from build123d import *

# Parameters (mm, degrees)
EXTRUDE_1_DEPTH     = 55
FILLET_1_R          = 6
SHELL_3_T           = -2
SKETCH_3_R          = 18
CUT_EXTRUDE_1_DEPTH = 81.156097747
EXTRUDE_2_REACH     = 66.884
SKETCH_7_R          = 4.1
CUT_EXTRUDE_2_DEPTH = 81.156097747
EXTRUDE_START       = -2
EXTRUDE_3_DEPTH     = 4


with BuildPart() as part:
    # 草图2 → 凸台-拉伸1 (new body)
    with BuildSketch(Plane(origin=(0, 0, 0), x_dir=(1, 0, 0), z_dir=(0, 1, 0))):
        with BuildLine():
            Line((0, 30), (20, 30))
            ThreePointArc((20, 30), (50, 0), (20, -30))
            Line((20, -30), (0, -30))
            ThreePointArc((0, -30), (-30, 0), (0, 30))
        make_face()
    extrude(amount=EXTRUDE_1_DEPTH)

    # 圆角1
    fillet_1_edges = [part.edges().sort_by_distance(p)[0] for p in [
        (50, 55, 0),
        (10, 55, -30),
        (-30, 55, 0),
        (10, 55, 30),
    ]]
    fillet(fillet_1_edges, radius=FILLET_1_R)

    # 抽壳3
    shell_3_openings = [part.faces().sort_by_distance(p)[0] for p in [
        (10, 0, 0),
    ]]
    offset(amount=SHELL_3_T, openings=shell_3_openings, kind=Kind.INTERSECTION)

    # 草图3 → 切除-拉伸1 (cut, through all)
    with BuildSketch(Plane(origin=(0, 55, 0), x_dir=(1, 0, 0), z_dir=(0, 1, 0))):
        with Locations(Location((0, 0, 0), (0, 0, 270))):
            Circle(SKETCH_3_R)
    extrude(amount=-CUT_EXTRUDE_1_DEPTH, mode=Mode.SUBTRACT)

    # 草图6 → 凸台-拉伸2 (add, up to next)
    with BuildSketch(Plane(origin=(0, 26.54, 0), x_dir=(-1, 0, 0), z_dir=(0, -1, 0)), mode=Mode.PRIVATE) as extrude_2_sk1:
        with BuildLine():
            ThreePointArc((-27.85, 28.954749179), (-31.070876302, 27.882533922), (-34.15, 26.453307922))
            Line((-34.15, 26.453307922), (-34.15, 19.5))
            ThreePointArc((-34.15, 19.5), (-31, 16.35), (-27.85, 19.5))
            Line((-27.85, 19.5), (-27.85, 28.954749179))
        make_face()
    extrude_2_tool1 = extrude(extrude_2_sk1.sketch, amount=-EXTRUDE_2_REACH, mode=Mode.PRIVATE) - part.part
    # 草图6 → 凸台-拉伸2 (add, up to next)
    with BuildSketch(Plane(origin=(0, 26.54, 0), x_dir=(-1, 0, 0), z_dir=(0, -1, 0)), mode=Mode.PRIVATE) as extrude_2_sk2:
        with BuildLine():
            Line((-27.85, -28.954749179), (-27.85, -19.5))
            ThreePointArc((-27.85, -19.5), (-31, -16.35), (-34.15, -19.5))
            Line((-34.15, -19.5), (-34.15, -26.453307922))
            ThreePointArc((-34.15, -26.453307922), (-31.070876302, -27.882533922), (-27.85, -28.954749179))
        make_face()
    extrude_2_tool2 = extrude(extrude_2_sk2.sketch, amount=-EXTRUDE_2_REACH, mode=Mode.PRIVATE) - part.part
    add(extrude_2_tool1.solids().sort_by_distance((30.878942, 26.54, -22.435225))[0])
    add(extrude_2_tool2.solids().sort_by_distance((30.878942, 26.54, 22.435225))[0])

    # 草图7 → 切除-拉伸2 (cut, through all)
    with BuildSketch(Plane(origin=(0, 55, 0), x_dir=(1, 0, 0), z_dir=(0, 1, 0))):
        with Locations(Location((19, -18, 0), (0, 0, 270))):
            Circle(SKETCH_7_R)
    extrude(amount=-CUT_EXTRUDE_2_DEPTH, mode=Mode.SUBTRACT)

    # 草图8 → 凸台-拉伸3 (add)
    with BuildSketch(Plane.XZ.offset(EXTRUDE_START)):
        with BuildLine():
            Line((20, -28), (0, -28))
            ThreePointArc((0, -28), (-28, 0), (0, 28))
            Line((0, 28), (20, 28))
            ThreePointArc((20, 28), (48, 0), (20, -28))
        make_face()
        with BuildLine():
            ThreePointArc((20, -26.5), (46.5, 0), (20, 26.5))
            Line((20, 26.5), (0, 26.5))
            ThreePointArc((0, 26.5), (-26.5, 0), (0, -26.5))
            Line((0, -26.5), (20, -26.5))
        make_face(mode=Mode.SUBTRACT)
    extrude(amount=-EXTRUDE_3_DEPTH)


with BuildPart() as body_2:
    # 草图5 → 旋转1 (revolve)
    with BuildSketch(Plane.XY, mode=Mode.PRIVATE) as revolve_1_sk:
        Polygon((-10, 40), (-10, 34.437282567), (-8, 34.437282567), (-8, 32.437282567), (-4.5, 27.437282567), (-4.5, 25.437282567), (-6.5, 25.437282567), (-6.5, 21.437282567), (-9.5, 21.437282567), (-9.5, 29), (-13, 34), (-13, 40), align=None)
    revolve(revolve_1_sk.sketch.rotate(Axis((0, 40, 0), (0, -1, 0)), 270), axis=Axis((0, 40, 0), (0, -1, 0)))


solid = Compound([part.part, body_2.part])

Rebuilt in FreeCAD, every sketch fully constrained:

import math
import FreeCAD as App
import Part
import Sketcher

V = App.Vector


def edges_at(feature, points):
    """Names of the edges that pass closest to the given points."""
    edges = feature.Shape.Edges
    near = lambda p: min(range(len(edges)), key=lambda i: edges[i].distToShape(Part.Vertex(*p))[0])
    return sorted({f"Edge{near(p) + 1}" for p in points})


def faces_at(feature, points):
    """Names of the faces that lie closest to the given points."""
    faces = feature.Shape.Faces
    near = lambda p: min(range(len(faces)), key=lambda i: faces[i].distToShape(Part.Vertex(*p))[0])
    return sorted({f"Face{near(p) + 1}" for p in points})


def add_polygon(sketch, points):
    """Adds a closed chain of lines whose ends are joined by coincident constraints."""
    first, n = sketch.GeometryCount, len(points)
    for a, b in zip(points, points[1:] + points[:1]):
        sketch.addGeometry(Part.LineSegment(App.Vector(*a, 0), App.Vector(*b, 0)), False)
    for i in range(n):
        sketch.addConstraint(Sketcher.Constraint("Coincident", first + i, 2, first + (i + 1) % n, 1))

doc = App.newDocument("Part")
body = doc.addObject("PartDesign::Body", "Body")

# Sketch on XZ plane
sketch1 = body.newObject("Sketcher::SketchObject", "Sketch")
sketch1.AttachmentSupport = (doc.getObject("XZ_Plane"), [""])
sketch1.MapMode = "FlatFace"
sketch1.addGeometry([
    Part.LineSegment(V(20, -30, 0), V(0, -30, 0)),
    Part.ArcOfCircle(Part.Circle(V(0, 0, 0), V(0, 0, 1), 30), math.radians(90), math.radians(270)),
    Part.LineSegment(V(0, 30, 0), V(20, 30, 0)),
    Part.ArcOfCircle(Part.Circle(V(20, 0, 0), V(0, 0, 1), 30), math.radians(-90), math.radians(90)),
], False)
sketch1.addConstraint([
    Sketcher.Constraint("Tangent", 0, 2, 1, 2),
    Sketcher.Constraint("Tangent", 1, 1, 2, 1),
    Sketcher.Constraint("Tangent", 2, 2, 3, 2),
    Sketcher.Constraint("Tangent", 3, 1, 0, 1),
    Sketcher.Constraint("Horizontal", 0),
    Sketcher.Constraint("Horizontal", 2),
    Sketcher.Constraint("Coincident", 1, 3, -1, 1),
    Sketcher.Constraint("Radius", 1, 30.0),
    Sketcher.Constraint("DistanceX", 0, 2, 0, 1, 20.0),
])
pad1 = body.newObject("PartDesign::Pad", "Pad")
pad1.Profile = sketch1
pad1.Length = 55
pad1.Reversed = True
doc.recompute()

fillet = body.newObject("PartDesign::Fillet", "Fillet")
fillet.Base = (pad1, edges_at(pad1, [
    (50, 55, 0),
    (10, 55, -30),
    (-30, 55, 0),
    (10, 55, 30),
]))
fillet.Radius = 6
doc.recompute()

thickness = body.newObject("PartDesign::Thickness", "Thickness")
thickness.Base = (fillet, faces_at(fillet, [(10, 0, 0)]))
thickness.Value = 2
thickness.Reversed = True
thickness.Join = "Intersection"

# Sketch on XZ plane
sketch2 = body.newObject("Sketcher::SketchObject", "Sketch001")
sketch2.AttachmentSupport = (doc.getObject("XZ_Plane"), [""])
sketch2.MapMode = "FlatFace"
sketch2.AttachmentOffset = App.Placement(V(0, 0, -55), App.Rotation())
sketch2.addGeometry(Part.Circle(V(0, 0, 0), V(0, 0, 1), 18), False)
sketch2.addConstraint([
    Sketcher.Constraint("Coincident", 0, 3, -1, 1),
    Sketcher.Constraint("Diameter", 0, 36.0),
])
pocket1 = body.newObject("PartDesign::Pocket", "Pocket")
pocket1.Profile = sketch2
pocket1.Type = "ThroughAll"
pocket1.Reversed = True

# Sketch on XZ plane
sketch3 = body.newObject("Sketcher::SketchObject", "Sketch002")
sketch3.AttachmentSupport = (doc.getObject("XZ_Plane"), [""])
sketch3.MapMode = "FlatFace"
sketch3.AttachmentOffset = App.Placement(V(0, 0, -26.54), App.Rotation())
sketch3.addGeometry([
    Part.ArcOfCircle(Part.Circle(V(20, 0, 0), V(0, 0, 1), 30), math.radians(-74.83), math.radians(-61.86)),
    Part.LineSegment(V(34.1, -26.5, 0), V(34.1, -19.5, 0)),
    Part.ArcOfCircle(Part.Circle(V(31, -19.5, 0), V(0, 0, 1), 3.1), math.radians(0), math.radians(180)),
    Part.LineSegment(V(27.9, -19.5, 0), V(27.9, -29, 0)),
], False)
sketch3.addConstraint([
    Sketcher.Constraint("Coincident", 0, 2, 1, 1),
    Sketcher.Constraint("Tangent", 1, 2, 2, 1),
    Sketcher.Constraint("Tangent", 2, 2, 3, 1),
    Sketcher.Constraint("Coincident", 3, 2, 0, 1),
    Sketcher.Constraint("Vertical", 1),
    Sketcher.Constraint("Vertical", 3),
    Sketcher.Constraint("PointOnObject", 0, 3, -1),
    Sketcher.Constraint("Radius", 0, 30.0),
    Sketcher.Constraint("Radius", 2, 3.15),
    Sketcher.Constraint("DistanceX", -1, 1, 0, 3, 20.0),
    Sketcher.Constraint("DistanceX", -1, 1, 2, 3, 31.0),
    Sketcher.Constraint("DistanceY", 2, 3, -1, 1, 19.5),
])
pad2 = body.newObject("PartDesign::Pad", "Pad001")
pad2.Profile = sketch3
pad2.Type = "UpToFirst"
pad2.Reversed = True

# Sketch on XZ plane
sketch4 = body.newObject("Sketcher::SketchObject", "Sketch003")
sketch4.AttachmentSupport = (doc.getObject("XZ_Plane"), [""])
sketch4.MapMode = "FlatFace"
sketch4.AttachmentOffset = App.Placement(V(0, 0, -26.54), App.Rotation())
sketch4.addGeometry([
    Part.LineSegment(V(27.9, 29, 0), V(27.9, 19.5, 0)),
    Part.ArcOfCircle(Part.Circle(V(31, 19.5, 0), V(0, 0, 1), 3.1), math.radians(180), math.radians(360)),
    Part.LineSegment(V(34.1, 19.5, 0), V(34.1, 26.5, 0)),
    Part.ArcOfCircle(Part.Circle(V(20, 0, 0), V(0, 0, 1), 30), math.radians(61.86), math.radians(74.83)),
], False)
sketch4.addConstraint([
    Sketcher.Constraint("Tangent", 0, 2, 1, 1),
    Sketcher.Constraint("Tangent", 1, 2, 2, 1),
    Sketcher.Constraint("Coincident", 2, 2, 3, 1),
    Sketcher.Constraint("Coincident", 3, 2, 0, 1),
    Sketcher.Constraint("Vertical", 0),
    Sketcher.Constraint("Vertical", 2),
    Sketcher.Constraint("PointOnObject", 3, 3, -1),
    Sketcher.Constraint("Radius", 3, 30.0),
    Sketcher.Constraint("Radius", 1, 3.15),
    Sketcher.Constraint("DistanceX", -1, 1, 1, 3, 31.0),
    Sketcher.Constraint("DistanceX", -1, 1, 3, 3, 20.0),
    Sketcher.Constraint("DistanceY", -1, 1, 1, 3, 19.5),
])
pad3 = body.newObject("PartDesign::Pad", "Pad002")
pad3.Profile = sketch4
pad3.Type = "UpToFirst"
pad3.Reversed = True

# Sketch on XZ plane
sketch5 = body.newObject("Sketcher::SketchObject", "Sketch004")
sketch5.AttachmentSupport = (doc.getObject("XZ_Plane"), [""])
sketch5.MapMode = "FlatFace"
sketch5.AttachmentOffset = App.Placement(V(0, 0, -55), App.Rotation())
sketch5.addGeometry(Part.Circle(V(19, 18, 0), V(0, 0, 1), 4.1), False)
sketch5.addConstraint([
    Sketcher.Constraint("Diameter", 0, 8.2),
    Sketcher.Constraint("DistanceX", -1, 1, 0, 3, 19.0),
    Sketcher.Constraint("DistanceY", -1, 1, 0, 3, 18.0),
])
pocket2 = body.newObject("PartDesign::Pocket", "Pocket001")
pocket2.Profile = sketch5
pocket2.Type = "ThroughAll"
pocket2.Reversed = True

# Sketch on XZ plane
sketch6 = body.newObject("Sketcher::SketchObject", "Sketch005")
sketch6.AttachmentSupport = (doc.getObject("XZ_Plane"), [""])
sketch6.MapMode = "FlatFace"
sketch6.AttachmentOffset = App.Placement(V(0, 0, -2), App.Rotation())
sketch6.addGeometry([
    Part.LineSegment(V(0, -28, 0), V(20, -28, 0)),  # 0
    Part.ArcOfCircle(Part.Circle(V(20, 0, 0), V(0, 0, 1), 28), math.radians(-90), math.radians(90)),  # 1
    Part.LineSegment(V(20, 28, 0), V(0, 28, 0)),  # 2
    Part.ArcOfCircle(Part.Circle(V(0, 0, 0), V(0, 0, 1), 28), math.radians(90), math.radians(270)),  # 3
    Part.LineSegment(V(20, -26, 0), V(0, -26, 0)),  # 4
    Part.ArcOfCircle(Part.Circle(V(0, 0, 0), V(0, 0, 1), 26), math.radians(90), math.radians(270)),  # 5
    Part.LineSegment(V(0, 26, 0), V(20, 26, 0)),  # 6
    Part.ArcOfCircle(Part.Circle(V(20, 0, 0), V(0, 0, 1), 26), math.radians(-90), math.radians(90)),  # 7
], False)
sketch6.addConstraint([
    Sketcher.Constraint("Tangent", 0, 2, 1, 1),
    Sketcher.Constraint("Tangent", 1, 2, 2, 1),
    Sketcher.Constraint("Tangent", 2, 2, 3, 1),
    Sketcher.Constraint("Tangent", 3, 2, 0, 1),
    Sketcher.Constraint("Tangent", 4, 2, 5, 2),
    Sketcher.Constraint("Tangent", 5, 1, 6, 1),
    Sketcher.Constraint("Tangent", 6, 2, 7, 2),
    Sketcher.Constraint("Tangent", 7, 1, 4, 1),
    Sketcher.Constraint("Horizontal", 0),
    Sketcher.Constraint("Horizontal", 2),
    Sketcher.Constraint("Horizontal", 4),
    Sketcher.Constraint("Horizontal", 6),
    Sketcher.Constraint("Coincident", 3, 3, -1, 1),
    Sketcher.Constraint("Coincident", 5, 3, -1, 1),
    Sketcher.Constraint("Vertical", 7, 3, 0, 2),
    Sketcher.Constraint("Radius", 1, 28.0),
    Sketcher.Constraint("Radius", 5, 26.5),
    Sketcher.Constraint("DistanceX", 0, 1, 0, 2, 20.0),
])
pad4 = body.newObject("PartDesign::Pad", "Pad003")
pad4.Profile = sketch6
pad4.Length = 4
pad4.Reversed = True
body2 = doc.addObject("PartDesign::Body", "Body001")

# Sketch on XY plane
sketch7 = body2.newObject("Sketcher::SketchObject", "Sketch006")
sketch7.AttachmentSupport = (doc.getObject("XY_Plane001"), [""])
sketch7.MapMode = "FlatFace"
add_polygon(sketch7, [(-10, 34.4), (-10, 40), (-13, 40), (-13, 34), (-9.5, 29), (-9.5, 21.4), (-6.5, 21.4), (-6.5, 25.4), (-4.5, 25.4), (-4.5, 27.4), (-8, 32.4), (-8, 34.4)])  # lines 0-11
sketch7.addConstraint([
    Sketcher.Constraint("Vertical", 0),
    Sketcher.Constraint("Horizontal", 1),
    Sketcher.Constraint("Vertical", 2),
    Sketcher.Constraint("Vertical", 4),
    Sketcher.Constraint("Horizontal", 5),
    Sketcher.Constraint("Vertical", 6),
    Sketcher.Constraint("Horizontal", 7),
    Sketcher.Constraint("Vertical", 8),
    Sketcher.Constraint("Vertical", 10),
    Sketcher.Constraint("Horizontal", 11),
    Sketcher.Constraint("Parallel", 3, 9),
    Sketcher.Constraint("Equal", 1, 5),
    Sketcher.Constraint("Equal", 7, 11),
    Sketcher.Constraint("Equal", 11, 8),
    Sketcher.Constraint("Equal", 8, 10),
    Sketcher.Constraint("DistanceX", 1, 2, 1, 1, 3.0),
    Sketcher.Constraint("DistanceX", 7, 1, 7, 2, 2.0),
    Sketcher.Constraint("DistanceY", 2, 2, 2, 1, 6.0),
    Sketcher.Constraint("DistanceY", 6, 1, 6, 2, 4.0),
    Sketcher.Constraint("DistanceX", 0, 2, -1, 1, 10.0),
    Sketcher.Constraint("DistanceY", -1, 1, 0, 2, 40.0),
    Sketcher.Constraint("DistanceY", -1, 1, 3, 2, 29.0),
    Sketcher.Constraint("DistanceX", 3, 2, -1, 1, 9.5),
    Sketcher.Constraint("DistanceY", 0, 1, 0, 2, 5.562717),
])
revolution = body2.newObject("PartDesign::Revolution", "Revolution")
revolution.Profile = sketch7
revolution.ReferenceAxis = (sketch7, ["V_Axis"])
revolution.Angle = 360

doc.recompute()
